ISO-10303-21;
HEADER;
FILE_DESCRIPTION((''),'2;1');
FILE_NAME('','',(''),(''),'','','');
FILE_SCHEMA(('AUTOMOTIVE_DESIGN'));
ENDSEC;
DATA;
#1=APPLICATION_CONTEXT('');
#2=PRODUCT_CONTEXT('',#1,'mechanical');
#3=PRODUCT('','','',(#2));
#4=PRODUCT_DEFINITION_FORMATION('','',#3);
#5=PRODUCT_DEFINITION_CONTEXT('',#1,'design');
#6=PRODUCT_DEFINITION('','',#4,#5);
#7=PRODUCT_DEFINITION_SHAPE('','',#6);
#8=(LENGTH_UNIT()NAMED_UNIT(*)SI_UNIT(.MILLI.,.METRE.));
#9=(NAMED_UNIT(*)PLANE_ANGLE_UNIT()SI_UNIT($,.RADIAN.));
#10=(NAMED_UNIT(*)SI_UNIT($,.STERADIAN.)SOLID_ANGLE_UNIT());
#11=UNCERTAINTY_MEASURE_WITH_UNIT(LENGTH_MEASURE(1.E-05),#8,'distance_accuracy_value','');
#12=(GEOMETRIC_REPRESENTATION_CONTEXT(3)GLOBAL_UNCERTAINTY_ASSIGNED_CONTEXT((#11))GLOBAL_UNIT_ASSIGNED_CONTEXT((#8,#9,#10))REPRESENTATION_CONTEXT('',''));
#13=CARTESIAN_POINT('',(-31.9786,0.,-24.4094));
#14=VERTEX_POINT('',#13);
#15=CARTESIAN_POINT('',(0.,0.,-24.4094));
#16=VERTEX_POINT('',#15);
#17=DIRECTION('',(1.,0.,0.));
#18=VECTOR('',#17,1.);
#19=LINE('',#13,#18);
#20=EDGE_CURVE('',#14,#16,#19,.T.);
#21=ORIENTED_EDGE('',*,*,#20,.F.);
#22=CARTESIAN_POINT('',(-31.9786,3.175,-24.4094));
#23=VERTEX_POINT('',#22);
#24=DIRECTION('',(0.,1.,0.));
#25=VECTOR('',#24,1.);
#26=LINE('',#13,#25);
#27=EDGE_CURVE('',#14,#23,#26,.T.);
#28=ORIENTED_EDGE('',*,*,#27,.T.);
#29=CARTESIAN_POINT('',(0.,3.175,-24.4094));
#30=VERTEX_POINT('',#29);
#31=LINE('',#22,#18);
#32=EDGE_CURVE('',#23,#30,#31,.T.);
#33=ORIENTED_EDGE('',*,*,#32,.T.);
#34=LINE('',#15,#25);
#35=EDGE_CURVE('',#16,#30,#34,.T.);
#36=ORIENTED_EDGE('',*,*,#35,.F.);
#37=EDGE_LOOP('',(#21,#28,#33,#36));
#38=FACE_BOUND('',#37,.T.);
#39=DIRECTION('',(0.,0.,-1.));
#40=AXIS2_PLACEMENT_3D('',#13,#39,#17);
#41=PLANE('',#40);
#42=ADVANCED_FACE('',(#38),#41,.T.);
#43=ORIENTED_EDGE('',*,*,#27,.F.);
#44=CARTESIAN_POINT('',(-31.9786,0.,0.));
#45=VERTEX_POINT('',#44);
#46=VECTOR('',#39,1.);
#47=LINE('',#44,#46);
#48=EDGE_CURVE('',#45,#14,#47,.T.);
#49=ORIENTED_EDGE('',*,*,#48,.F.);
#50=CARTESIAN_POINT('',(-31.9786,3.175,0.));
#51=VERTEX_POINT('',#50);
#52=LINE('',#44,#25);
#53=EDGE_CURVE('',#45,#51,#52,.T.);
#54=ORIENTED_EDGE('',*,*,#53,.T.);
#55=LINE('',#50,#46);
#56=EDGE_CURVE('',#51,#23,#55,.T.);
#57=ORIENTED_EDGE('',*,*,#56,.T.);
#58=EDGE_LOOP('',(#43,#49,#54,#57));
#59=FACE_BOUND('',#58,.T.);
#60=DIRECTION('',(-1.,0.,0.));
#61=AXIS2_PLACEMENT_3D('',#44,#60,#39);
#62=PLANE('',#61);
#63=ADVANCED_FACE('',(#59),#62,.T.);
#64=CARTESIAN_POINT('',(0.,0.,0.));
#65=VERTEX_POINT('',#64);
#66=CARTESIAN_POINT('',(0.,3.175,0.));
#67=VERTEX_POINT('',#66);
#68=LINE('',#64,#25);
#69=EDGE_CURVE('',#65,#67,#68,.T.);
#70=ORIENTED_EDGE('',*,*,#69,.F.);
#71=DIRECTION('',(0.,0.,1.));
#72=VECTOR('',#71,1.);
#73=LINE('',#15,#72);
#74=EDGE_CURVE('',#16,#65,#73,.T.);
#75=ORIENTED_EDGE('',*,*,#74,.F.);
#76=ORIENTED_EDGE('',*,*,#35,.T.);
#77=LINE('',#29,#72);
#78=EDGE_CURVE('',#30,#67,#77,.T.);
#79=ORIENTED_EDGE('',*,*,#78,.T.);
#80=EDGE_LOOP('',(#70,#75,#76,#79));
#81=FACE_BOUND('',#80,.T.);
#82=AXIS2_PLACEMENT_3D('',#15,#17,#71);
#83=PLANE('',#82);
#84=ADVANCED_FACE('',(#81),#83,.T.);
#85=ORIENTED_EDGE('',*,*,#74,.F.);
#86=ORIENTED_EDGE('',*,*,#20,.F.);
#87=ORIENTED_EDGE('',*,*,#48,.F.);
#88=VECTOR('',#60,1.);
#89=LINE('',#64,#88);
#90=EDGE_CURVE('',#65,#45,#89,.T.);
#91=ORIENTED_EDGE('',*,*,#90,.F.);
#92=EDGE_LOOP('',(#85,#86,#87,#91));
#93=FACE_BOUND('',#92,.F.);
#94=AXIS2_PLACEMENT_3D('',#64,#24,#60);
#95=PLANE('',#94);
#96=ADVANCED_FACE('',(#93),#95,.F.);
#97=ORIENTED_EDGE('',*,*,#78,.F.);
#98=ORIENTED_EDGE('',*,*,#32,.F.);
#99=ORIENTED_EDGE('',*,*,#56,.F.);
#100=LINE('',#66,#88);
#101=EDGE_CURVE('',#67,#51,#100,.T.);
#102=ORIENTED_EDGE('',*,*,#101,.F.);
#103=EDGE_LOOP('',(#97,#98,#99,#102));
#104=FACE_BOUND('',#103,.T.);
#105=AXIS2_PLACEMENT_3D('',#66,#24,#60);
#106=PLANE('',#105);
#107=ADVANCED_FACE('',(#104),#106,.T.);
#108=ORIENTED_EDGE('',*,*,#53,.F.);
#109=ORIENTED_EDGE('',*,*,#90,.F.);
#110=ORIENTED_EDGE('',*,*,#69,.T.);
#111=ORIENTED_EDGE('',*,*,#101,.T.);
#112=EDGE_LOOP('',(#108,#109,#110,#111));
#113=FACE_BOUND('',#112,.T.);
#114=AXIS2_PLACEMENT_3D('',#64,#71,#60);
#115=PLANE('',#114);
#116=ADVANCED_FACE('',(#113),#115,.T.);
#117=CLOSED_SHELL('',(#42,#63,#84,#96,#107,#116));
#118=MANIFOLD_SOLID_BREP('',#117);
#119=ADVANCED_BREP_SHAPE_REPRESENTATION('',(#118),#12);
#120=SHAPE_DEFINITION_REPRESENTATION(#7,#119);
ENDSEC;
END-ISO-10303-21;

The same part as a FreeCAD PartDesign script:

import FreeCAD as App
import Part
import Sketcher
Q = App.Units.Quantity


def add_polygon(sketch, points):
    """Adds a closed chain of lines whose ends are joined by coincident constraints."""
    first, n = sketch.GeometryCount, len(points)
    for a, b in zip(points, points[1:] + points[:1]):
        sketch.addGeometry(Part.LineSegment(App.Vector(*a, 0), App.Vector(*b, 0)), False)
    for i in range(n):
        sketch.addConstraint(Sketcher.Constraint("Coincident", first + i, 2, first + (i + 1) % n, 1))

doc = App.newDocument("Part")
params = doc.addObject("Spreadsheet::Sheet", "Params")
for row, (alias, value) in enumerate([
    ("sketch1_width", "1.259 in"),
    ("sketch1_height", "0.961 in"),
    ("pad1_length", "0.125 in"),
], start=1):
    params.set(f"A{row}", alias)
    params.set(f"B{row}", "=" + value)
    params.setAlias(f"B{row}", alias)

body = doc.addObject("PartDesign::Body", "Body")

# Sketch on XZ plane
sketch1 = body.newObject("Sketcher::SketchObject", "Sketch")
sketch1.AttachmentSupport = (doc.getObject("XZ_Plane"), [""])
sketch1.MapMode = "FlatFace"
add_polygon(sketch1, [(-31.9786, 0), (0, 0), (0, -24.4094), (-31.9786, -24.4094)])  # lines 0-3
sketch1.addConstraint([
    Sketcher.Constraint("Horizontal", 0),
    Sketcher.Constraint("Vertical", 1),
    Sketcher.Constraint("Horizontal", 2),
    Sketcher.Constraint("Vertical", 3),
    Sketcher.Constraint("Coincident", 0, 2, -1, 1),
    Sketcher.Constraint("DistanceX", 0, 1, 0, 2, Q("1.259 in")),
    Sketcher.Constraint("DistanceY", 1, 2, 1, 1, Q("0.961 in")),
])
sketch1.setExpression("Constraints[9]", "Params.sketch1_width")
sketch1.setExpression("Constraints[10]", "Params.sketch1_height")
pad1 = body.newObject("PartDesign::Pad", "Pad")
pad1.Profile = sketch1
pad1.setExpression("Length", "Params.pad1_length")
pad1.Reversed = True

doc.recompute()
